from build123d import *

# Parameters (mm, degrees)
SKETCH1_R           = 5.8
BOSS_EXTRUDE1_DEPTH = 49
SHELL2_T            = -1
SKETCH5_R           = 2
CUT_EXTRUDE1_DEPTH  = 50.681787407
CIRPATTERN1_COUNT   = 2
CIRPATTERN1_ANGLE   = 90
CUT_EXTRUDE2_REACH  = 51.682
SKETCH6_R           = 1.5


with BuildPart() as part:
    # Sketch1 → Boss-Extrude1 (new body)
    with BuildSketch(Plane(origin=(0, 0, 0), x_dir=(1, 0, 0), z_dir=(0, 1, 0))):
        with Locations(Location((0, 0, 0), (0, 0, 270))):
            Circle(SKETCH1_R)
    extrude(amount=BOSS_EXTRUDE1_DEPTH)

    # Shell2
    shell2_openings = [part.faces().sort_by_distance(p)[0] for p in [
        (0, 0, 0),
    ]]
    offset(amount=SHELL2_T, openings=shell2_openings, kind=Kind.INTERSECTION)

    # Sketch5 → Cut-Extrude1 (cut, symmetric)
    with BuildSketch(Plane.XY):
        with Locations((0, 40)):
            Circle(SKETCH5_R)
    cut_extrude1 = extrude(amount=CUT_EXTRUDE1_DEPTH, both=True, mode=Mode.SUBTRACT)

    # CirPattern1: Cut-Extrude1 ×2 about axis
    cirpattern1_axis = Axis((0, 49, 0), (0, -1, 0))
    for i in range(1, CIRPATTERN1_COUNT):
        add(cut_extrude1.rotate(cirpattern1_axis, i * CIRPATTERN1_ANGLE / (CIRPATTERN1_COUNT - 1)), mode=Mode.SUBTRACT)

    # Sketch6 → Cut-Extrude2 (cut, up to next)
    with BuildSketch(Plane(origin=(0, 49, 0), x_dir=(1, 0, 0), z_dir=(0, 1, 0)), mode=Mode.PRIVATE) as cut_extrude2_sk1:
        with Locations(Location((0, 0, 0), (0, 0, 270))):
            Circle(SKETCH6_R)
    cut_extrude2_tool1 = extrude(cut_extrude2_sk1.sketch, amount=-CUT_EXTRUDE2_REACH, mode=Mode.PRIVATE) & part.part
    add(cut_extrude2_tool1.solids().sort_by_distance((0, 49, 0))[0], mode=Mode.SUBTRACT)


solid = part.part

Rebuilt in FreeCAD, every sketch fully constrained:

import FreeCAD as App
import Part
import Sketcher


def faces_at(feature, points):
    """Names of the faces that lie closest to the given points."""
    faces = feature.Shape.Faces
    near = lambda p: min(range(len(faces)), key=lambda i: faces[i].distToShape(Part.Vertex(*p))[0])
    return sorted({f"Face{near(p) + 1}" for p in points})

doc = App.newDocument("Part")
body = doc.addObject("PartDesign::Body", "Body")

# Sketch on XZ plane
sketch1 = body.newObject("Sketcher::SketchObject", "Sketch")
sketch1.AttachmentSupport = (doc.getObject("XZ_Plane"), [""])
sketch1.MapMode = "FlatFace"
sketch1.addGeometry(Part.Circle(App.Vector(0, 0, 0), App.Vector(0, 0, 1), 5.8), False)
sketch1.addConstraint([
    Sketcher.Constraint("Coincident", 0, 3, -1, 1),
    Sketcher.Constraint("Diameter", 0, 11.6),
])
pad1 = body.newObject("PartDesign::Pad", "Pad")
pad1.Profile = sketch1
pad1.Length = 49
pad1.Reversed = True
doc.recompute()

thickness = body.newObject("PartDesign::Thickness", "Thickness")
thickness.Base = (pad1, faces_at(pad1, [(0, 0, 0)]))
thickness.Value = 1
thickness.Reversed = True
thickness.Join = "Intersection"

# Sketch on XY plane
sketch2 = body.newObject("Sketcher::SketchObject", "Sketch001")
sketch2.AttachmentSupport = (doc.getObject("XY_Plane"), [""])
sketch2.MapMode = "FlatFace"
sketch2.addGeometry(Part.Circle(App.Vector(0, 40, 0), App.Vector(0, 0, 1), 2), False)
sketch2.addConstraint([
    Sketcher.Constraint("PointOnObject", 0, 3, -2),
    Sketcher.Constraint("Diameter", 0, 4.0),
    Sketcher.Constraint("DistanceY", -1, 1, 0, 3, 40.0),
])
pocket1 = body.newObject("PartDesign::Pocket", "Pocket")
pocket1.Profile = sketch2
pocket1.Length = 101.363575
pocket1.Midplane = True
doc.recompute()

polarpattern = body.newObject("PartDesign::PolarPattern", "PolarPattern")
polarpattern.Originals = [pocket1]
polarpattern.Axis = (doc.getObject("Y_Axis"), [""])
polarpattern.Angle = 90
polarpattern.Occurrences = 2
polarpattern.Reversed = True
body.Tip = polarpattern

# Sketch on XZ plane
sketch3 = body.newObject("Sketcher::SketchObject", "Sketch002")
sketch3.AttachmentSupport = (doc.getObject("XZ_Plane"), [""])
sketch3.MapMode = "FlatFace"
sketch3.AttachmentOffset = App.Placement(App.Vector(0, 0, -49), App.Rotation())
sketch3.addGeometry(Part.Circle(App.Vector(0, 0, 0), App.Vector(0, 0, 1), 1.5), False)
sketch3.addConstraint([
    Sketcher.Constraint("Coincident", 0, 3, -1, 1),
    Sketcher.Constraint("Diameter", 0, 3.0),
])
pocket2 = body.newObject("PartDesign::Pocket", "Pocket001")
pocket2.Profile = sketch3
pocket2.Type = "UpToFirst"
pocket2.Reversed = True

doc.recompute()
